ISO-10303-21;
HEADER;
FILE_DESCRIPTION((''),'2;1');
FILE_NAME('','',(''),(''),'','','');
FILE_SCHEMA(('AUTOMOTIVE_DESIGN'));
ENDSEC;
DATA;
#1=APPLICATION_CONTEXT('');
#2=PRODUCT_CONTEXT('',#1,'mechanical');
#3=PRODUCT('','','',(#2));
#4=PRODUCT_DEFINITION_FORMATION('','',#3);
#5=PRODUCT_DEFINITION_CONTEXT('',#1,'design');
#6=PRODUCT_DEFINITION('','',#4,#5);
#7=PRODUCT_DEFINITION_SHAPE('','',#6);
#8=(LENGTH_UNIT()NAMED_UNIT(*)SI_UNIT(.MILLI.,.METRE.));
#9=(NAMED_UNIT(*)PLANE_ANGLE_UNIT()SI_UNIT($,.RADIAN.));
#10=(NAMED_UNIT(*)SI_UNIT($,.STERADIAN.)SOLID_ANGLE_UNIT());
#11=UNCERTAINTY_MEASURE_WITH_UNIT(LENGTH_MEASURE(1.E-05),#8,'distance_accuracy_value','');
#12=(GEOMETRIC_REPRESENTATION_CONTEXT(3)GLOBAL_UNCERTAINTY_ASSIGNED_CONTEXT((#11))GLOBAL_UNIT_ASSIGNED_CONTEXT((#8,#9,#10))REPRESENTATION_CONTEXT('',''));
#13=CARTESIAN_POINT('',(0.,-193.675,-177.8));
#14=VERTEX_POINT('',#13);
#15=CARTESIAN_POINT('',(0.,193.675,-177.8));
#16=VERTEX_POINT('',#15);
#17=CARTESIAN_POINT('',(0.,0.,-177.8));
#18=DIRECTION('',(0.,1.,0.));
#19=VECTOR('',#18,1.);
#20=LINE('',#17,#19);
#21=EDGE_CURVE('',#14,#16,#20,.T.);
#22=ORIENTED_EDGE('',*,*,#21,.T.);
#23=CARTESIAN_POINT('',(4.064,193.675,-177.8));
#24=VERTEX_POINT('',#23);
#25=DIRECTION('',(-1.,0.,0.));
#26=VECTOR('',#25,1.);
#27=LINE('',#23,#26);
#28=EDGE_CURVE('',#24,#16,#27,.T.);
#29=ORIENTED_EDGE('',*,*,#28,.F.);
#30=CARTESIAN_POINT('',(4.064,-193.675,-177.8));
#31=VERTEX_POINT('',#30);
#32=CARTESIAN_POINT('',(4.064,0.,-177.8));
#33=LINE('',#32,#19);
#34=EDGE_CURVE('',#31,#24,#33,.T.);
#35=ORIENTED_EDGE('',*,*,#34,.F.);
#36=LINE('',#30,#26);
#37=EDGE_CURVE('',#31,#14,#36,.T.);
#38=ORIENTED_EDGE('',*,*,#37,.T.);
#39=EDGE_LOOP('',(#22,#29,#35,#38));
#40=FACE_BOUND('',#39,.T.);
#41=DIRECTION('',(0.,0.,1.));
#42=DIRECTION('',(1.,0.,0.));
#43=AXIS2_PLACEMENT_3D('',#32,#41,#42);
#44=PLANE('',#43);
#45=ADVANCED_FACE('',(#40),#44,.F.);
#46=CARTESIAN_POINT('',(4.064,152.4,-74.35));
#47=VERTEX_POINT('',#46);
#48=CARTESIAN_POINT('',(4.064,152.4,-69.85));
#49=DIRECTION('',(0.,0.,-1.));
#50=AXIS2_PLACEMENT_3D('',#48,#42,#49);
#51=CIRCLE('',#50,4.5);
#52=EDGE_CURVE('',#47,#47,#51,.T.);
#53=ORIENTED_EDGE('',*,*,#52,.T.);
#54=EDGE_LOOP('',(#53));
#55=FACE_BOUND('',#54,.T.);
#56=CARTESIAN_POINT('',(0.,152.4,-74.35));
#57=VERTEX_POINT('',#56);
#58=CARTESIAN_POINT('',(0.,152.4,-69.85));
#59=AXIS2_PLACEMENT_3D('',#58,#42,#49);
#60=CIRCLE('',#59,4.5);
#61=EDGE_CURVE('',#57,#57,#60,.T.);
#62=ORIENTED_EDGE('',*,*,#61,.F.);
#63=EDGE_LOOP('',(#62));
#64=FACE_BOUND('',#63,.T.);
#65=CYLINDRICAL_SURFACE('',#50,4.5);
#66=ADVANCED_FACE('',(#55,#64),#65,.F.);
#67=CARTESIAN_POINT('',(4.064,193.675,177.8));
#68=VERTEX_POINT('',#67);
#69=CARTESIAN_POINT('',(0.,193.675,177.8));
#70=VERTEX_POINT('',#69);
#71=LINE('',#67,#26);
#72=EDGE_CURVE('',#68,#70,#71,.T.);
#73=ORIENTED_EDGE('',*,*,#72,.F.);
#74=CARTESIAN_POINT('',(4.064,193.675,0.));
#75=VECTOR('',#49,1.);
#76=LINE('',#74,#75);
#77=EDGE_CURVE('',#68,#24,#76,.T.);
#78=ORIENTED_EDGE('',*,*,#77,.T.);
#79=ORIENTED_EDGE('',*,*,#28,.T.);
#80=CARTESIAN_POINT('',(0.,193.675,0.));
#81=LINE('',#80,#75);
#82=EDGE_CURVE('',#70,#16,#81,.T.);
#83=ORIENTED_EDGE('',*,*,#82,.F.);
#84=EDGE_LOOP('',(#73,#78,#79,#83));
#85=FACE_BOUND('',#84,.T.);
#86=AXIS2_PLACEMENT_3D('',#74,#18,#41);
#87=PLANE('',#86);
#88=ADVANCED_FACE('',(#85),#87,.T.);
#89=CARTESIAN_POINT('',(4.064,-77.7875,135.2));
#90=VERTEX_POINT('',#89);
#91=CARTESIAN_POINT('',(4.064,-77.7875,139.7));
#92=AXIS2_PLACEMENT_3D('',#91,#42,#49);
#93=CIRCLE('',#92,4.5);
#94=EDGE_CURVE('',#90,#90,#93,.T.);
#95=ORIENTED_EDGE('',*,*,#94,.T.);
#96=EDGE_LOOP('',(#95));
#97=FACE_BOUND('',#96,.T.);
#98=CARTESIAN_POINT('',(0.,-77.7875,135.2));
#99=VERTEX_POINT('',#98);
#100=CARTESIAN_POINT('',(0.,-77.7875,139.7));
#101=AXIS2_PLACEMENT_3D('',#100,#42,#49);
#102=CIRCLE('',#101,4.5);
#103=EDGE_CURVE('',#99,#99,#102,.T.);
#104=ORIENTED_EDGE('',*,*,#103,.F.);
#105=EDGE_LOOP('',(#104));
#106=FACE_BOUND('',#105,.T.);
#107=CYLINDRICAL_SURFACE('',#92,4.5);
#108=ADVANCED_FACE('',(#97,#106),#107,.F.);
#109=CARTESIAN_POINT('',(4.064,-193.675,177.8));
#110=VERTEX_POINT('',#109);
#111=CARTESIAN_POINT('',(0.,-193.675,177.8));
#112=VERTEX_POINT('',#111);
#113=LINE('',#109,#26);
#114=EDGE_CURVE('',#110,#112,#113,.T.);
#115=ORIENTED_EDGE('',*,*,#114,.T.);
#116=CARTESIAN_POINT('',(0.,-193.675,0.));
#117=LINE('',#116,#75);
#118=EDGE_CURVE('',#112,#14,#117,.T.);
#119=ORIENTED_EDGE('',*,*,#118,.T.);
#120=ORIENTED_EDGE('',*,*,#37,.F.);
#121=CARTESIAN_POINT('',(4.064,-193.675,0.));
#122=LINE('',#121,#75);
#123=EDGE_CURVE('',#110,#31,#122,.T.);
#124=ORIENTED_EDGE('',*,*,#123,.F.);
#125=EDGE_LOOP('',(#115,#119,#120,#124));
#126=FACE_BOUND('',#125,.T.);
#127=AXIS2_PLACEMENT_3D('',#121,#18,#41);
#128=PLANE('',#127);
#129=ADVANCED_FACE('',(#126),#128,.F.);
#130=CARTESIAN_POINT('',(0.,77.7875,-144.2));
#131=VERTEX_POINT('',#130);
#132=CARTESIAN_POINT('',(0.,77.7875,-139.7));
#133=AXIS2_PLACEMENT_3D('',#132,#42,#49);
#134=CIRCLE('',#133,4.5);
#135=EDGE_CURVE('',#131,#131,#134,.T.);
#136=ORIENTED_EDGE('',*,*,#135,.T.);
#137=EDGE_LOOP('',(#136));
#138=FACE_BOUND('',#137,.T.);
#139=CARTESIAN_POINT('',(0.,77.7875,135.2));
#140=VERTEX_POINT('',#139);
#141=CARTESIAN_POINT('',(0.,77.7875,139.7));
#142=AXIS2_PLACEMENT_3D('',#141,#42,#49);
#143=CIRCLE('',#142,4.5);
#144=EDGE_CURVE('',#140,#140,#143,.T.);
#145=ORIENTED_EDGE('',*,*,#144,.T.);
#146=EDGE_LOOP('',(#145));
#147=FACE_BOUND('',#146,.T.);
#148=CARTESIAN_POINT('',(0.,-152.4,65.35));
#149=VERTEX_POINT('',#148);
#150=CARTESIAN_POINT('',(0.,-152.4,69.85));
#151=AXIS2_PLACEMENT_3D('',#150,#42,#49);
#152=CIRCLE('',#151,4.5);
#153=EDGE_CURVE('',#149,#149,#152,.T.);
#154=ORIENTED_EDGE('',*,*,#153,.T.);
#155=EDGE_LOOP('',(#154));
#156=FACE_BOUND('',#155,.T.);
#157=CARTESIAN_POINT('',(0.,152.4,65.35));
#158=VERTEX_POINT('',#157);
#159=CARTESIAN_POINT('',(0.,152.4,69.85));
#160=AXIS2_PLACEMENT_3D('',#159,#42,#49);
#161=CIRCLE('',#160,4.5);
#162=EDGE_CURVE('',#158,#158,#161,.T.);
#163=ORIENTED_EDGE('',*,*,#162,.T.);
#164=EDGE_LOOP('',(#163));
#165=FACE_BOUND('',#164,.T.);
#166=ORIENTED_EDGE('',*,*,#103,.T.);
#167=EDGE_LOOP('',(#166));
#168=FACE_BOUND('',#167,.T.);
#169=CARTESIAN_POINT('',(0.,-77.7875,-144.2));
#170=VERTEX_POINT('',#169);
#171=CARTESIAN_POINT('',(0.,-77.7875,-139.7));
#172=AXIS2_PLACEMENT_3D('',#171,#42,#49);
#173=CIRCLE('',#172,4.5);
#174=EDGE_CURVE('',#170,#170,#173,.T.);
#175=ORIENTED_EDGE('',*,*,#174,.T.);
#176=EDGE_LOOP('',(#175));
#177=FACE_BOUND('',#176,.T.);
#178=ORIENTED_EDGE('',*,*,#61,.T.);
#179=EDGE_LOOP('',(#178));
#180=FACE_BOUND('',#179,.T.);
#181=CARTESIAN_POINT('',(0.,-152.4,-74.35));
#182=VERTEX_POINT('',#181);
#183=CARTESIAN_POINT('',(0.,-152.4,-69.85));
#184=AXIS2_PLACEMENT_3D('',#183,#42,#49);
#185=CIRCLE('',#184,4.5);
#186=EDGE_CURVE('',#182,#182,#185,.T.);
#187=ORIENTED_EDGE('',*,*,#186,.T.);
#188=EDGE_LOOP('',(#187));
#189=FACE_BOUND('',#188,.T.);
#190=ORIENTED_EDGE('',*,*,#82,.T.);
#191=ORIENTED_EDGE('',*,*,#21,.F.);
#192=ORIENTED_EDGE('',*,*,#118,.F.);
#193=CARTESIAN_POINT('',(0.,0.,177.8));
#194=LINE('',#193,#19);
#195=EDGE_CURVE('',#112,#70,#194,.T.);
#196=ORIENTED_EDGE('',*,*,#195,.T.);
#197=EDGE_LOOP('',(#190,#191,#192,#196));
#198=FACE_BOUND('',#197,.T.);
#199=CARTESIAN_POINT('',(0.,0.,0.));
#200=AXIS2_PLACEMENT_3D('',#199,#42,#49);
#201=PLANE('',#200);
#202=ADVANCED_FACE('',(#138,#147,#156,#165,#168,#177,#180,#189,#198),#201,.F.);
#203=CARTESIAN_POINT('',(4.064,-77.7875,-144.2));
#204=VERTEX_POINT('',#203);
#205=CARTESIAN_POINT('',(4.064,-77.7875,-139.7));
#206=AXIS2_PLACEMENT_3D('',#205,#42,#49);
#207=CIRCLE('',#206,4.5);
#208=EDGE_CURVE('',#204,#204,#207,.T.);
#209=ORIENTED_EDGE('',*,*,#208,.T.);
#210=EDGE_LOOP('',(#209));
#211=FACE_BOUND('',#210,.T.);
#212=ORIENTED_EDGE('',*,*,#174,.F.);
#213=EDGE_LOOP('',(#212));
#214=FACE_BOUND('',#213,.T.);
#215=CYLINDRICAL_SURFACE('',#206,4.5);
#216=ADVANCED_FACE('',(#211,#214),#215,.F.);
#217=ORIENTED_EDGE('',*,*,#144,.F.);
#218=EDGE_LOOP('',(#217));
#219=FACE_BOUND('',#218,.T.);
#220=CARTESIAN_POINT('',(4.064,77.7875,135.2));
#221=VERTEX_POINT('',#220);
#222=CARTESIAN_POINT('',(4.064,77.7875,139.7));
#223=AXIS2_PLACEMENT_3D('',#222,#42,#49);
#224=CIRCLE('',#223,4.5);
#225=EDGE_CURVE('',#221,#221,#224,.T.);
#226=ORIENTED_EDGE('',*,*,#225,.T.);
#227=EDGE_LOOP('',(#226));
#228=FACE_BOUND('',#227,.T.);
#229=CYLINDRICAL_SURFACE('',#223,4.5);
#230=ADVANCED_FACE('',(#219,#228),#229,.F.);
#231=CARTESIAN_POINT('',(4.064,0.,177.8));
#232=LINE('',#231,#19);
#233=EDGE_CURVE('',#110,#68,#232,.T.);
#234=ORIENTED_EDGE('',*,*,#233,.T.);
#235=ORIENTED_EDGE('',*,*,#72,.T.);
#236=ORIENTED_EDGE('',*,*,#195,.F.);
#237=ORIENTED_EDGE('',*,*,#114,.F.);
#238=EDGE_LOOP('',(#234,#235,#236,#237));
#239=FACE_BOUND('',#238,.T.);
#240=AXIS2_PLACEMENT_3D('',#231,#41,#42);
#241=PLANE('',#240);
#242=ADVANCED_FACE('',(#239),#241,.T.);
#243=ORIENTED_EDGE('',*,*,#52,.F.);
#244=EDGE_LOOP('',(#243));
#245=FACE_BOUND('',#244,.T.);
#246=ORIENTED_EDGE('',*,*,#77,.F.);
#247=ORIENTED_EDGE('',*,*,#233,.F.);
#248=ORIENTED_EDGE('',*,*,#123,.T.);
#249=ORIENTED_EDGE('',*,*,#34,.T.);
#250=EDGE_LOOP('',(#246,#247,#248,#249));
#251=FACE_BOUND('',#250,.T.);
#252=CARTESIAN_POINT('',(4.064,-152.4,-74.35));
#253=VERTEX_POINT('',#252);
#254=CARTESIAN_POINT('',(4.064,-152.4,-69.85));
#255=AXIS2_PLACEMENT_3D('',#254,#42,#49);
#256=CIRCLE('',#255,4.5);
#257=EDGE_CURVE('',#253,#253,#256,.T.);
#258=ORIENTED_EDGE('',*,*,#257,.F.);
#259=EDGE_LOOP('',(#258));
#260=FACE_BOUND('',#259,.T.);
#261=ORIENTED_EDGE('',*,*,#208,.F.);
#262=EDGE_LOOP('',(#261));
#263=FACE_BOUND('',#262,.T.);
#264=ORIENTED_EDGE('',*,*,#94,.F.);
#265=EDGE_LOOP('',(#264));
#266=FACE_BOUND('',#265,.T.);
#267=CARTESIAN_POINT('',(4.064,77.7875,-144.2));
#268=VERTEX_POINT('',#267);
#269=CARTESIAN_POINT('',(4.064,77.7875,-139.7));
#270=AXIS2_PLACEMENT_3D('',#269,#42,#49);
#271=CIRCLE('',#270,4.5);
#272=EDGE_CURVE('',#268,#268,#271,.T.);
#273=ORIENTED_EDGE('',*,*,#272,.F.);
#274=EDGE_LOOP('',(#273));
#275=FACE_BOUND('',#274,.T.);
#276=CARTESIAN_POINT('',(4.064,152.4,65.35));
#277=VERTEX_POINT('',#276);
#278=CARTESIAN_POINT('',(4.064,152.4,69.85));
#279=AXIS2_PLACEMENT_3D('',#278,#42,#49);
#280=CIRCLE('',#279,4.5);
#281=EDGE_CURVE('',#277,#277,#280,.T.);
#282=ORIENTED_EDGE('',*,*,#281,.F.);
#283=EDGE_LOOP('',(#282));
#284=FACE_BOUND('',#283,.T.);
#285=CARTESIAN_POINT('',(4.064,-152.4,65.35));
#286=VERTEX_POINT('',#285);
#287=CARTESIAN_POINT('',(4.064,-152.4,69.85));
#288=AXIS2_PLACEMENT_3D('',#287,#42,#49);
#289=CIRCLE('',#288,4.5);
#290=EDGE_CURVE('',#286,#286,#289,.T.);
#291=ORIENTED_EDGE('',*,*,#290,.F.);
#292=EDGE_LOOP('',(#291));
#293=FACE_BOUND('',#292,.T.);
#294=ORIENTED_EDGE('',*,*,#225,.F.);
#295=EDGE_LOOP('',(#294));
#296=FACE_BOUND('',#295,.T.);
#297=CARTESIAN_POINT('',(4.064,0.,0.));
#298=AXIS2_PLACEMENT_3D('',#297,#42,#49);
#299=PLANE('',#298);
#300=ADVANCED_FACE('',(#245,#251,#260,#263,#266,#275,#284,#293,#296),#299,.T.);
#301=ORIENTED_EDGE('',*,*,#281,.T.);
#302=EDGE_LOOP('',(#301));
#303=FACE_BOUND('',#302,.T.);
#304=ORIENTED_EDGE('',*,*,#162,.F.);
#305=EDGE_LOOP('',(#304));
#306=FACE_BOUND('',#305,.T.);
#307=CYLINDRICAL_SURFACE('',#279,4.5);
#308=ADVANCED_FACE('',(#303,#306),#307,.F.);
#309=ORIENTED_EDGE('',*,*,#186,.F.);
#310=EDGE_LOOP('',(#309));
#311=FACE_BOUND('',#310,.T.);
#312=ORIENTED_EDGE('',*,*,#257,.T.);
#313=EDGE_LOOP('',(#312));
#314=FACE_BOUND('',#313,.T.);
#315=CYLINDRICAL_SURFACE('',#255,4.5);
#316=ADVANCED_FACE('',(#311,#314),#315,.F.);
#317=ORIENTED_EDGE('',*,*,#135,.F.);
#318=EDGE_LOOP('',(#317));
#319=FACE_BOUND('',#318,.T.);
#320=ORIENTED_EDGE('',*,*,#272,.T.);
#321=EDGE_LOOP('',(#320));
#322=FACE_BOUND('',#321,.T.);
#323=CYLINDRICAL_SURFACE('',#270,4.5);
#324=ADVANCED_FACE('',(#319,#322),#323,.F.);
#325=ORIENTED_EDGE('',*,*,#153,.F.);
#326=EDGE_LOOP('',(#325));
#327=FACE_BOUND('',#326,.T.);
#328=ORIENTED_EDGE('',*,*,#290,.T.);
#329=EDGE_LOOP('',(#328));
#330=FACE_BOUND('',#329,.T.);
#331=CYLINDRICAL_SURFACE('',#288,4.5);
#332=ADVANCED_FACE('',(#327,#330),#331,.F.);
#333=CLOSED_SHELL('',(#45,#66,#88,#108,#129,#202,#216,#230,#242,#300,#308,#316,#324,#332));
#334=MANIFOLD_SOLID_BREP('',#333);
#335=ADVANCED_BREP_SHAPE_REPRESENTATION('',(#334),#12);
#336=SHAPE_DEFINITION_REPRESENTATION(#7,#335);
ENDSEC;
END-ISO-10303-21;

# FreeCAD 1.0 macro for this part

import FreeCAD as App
import Part
import Sketcher

V = App.Vector
Q = App.Units.Quantity


def add_polygon(sketch, points):
    """Adds a closed chain of lines whose ends are joined by coincident constraints."""
    first, n = sketch.GeometryCount, len(points)
    for a, b in zip(points, points[1:] + points[:1]):
        sketch.addGeometry(Part.LineSegment(App.Vector(*a, 0), App.Vector(*b, 0)), False)
    for i in range(n):
        sketch.addConstraint(Sketcher.Constraint("Coincident", first + i, 2, first + (i + 1) % n, 1))

doc = App.newDocument("Part")
params = doc.addObject("Spreadsheet::Sheet", "Params")
for row, (alias, value) in enumerate([
    ("sketch1_height", "14 in"),
    ("sketch1_width", "15.25 in"),
    ("pad1_length", "0.16 in"),
    ("hole_diameter", "9 mm"),
], start=1):
    params.set(f"A{row}", alias)
    params.set(f"B{row}", "=" + value)
    params.setAlias(f"B{row}", alias)

body = doc.addObject("PartDesign::Body", "Body")

# Sketch on YZ plane
sketch1 = body.newObject("Sketcher::SketchObject", "Sketch")
sketch1.AttachmentSupport = (doc.getObject("YZ_Plane"), [""])
sketch1.MapMode = "FlatFace"
add_polygon(sketch1, [(194, 178), (-194, 178), (-194, -178), (194, -178)])  # lines 0-3
sketch1.addConstraint(Sketcher.Constraint("Horizontal", 0))
sketch1.addConstraint(Sketcher.Constraint("Vertical", 1))
sketch1.addConstraint(Sketcher.Constraint("Horizontal", 2))
sketch1.addConstraint(Sketcher.Constraint("Vertical", 3))
sketch1.addConstraint(Sketcher.Constraint("Symmetric", 0, 2, 2, 2, -1, 1))
sketch1.addConstraint(Sketcher.Constraint("DistanceY", 1, 2, 1, 1, Q("14 in")))
sketch1.addConstraint(Sketcher.Constraint("DistanceX", 0, 2, 0, 1, Q("15.25 in")))
sketch1.setExpression("Constraints[9]", "Params.sketch1_height")
sketch1.setExpression("Constraints[10]", "Params.sketch1_width")
pad1 = body.newObject("PartDesign::Pad", "Pad")
pad1.Profile = sketch1
pad1.setExpression("Length", "Params.pad1_length")

# Sketch on YZ plane
sketch2 = body.newObject("Sketcher::SketchObject", "Sketch001")
sketch2.AttachmentSupport = (doc.getObject("YZ_Plane"), [""])
sketch2.MapMode = "FlatFace"
sketch2.AttachmentOffset = App.Placement(V(0, 0, 0.16 * 25.4), App.Rotation())
sketch2.addGeometry(Part.Circle(V(77.8, 139.7, 0), V(0, 0, 1), 4.5), False)
sketch2.addGeometry(Part.Circle(V(152.4, 69.8, 0), V(0, 0, 1), 4.5), False)
sketch2.addGeometry(Part.Circle(V(152.4, -69.8, 0), V(0, 0, 1), 4.5), False)
sketch2.addGeometry(Part.Circle(V(77.8, -139.7, 0), V(0, 0, 1), 4.5), False)
sketch2.addGeometry(Part.Circle(V(-77.8, -139.7, 0), V(0, 0, 1), 4.5), False)
sketch2.addGeometry(Part.Circle(V(-152.4, -69.8, 0), V(0, 0, 1), 4.5), False)
sketch2.addGeometry(Part.Circle(V(-152.4, 69.8, 0), V(0, 0, 1), 4.5), False)
sketch2.addGeometry(Part.Circle(V(-77.8, 139.7, 0), V(0, 0, 1), 4.5), False)
sketch2.addConstraint(Sketcher.Constraint("Equal", 0, 1))
sketch2.addConstraint(Sketcher.Constraint("Equal", 1, 2))
sketch2.addConstraint(Sketcher.Constraint("Equal", 2, 3))
sketch2.addConstraint(Sketcher.Constraint("Equal", 3, 4))
sketch2.addConstraint(Sketcher.Constraint("Equal", 4, 5))
sketch2.addConstraint(Sketcher.Constraint("Equal", 5, 6))
sketch2.addConstraint(Sketcher.Constraint("Equal", 6, 7))
sketch2.addConstraint(Sketcher.Constraint("Symmetric", 0, 3, 4, 3, -1, 1))
sketch2.addConstraint(Sketcher.Constraint("Symmetric", 1, 3, 5, 3, -1, 1))
sketch2.addConstraint(Sketcher.Constraint("Symmetric", 2, 3, 6, 3, -1, 1))
sketch2.addConstraint(Sketcher.Constraint("Symmetric", 3, 3, 7, 3, -1, 1))
sketch2.addConstraint(Sketcher.Constraint("Symmetric", 3, 3, 4, 3, -2))
sketch2.addConstraint(Sketcher.Constraint("Symmetric", 2, 3, 5, 3, -2))
sketch2.addConstraint(Sketcher.Constraint("DistanceX", -1, 1, 1, 3, Q("6 in")))
sketch2.addConstraint(Sketcher.Constraint("DistanceY", 3, 3, 0, 3, Q("11 in")))
sketch2.addConstraint(Sketcher.Constraint("DistanceY", 2, 3, 1, 3, Q("5.5 in")))
sketch2.addConstraint(Sketcher.Constraint("Diameter", 0, 9.0))
sketch2.addConstraint(Sketcher.Constraint("DistanceX", -1, 1, 0, 3, Q("3.0625 in")))
doc.recompute()
hole = body.newObject("PartDesign::Hole", "Hole")
hole.Profile = sketch2
hole.ThreadType = "None"
hole.setExpression("Diameter", "Params.hole_diameter")
hole.DepthType = "ThroughAll"

doc.recompute()
